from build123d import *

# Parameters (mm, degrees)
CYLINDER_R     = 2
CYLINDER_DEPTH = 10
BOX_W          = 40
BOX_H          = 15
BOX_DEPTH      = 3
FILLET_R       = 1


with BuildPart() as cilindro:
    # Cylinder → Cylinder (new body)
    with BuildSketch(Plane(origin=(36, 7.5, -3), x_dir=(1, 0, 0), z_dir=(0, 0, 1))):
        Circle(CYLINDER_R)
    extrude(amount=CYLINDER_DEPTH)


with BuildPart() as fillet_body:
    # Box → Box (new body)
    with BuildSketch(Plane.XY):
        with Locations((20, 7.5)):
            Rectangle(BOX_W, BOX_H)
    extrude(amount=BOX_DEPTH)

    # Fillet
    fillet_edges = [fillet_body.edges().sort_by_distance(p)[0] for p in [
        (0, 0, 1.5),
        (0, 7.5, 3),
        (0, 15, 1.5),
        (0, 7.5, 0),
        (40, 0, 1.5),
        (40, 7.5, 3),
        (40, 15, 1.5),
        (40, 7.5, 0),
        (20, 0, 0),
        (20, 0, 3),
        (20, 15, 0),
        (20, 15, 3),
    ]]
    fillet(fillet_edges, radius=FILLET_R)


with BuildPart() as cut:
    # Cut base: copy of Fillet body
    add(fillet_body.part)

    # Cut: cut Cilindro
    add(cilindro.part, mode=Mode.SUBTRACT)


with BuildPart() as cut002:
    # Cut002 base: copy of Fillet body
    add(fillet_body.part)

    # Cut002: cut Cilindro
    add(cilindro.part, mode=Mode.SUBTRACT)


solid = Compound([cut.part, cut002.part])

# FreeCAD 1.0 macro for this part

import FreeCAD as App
import Part
import Sketcher

doc = App.newDocument("Part")
body = doc.addObject("PartDesign::Body", "Body")

# Sketch on XY plane
sketch1 = body.newObject("Sketcher::SketchObject", "Sketch")
sketch1.AttachmentSupport = (doc.getObject("XY_Plane"), [""])
sketch1.MapMode = "FlatFace"
sketch1.AttachmentOffset = App.Placement(App.Vector(0, 0, -3), App.Rotation())
sketch1.addGeometry(Part.Circle(App.Vector(36, 7.5, 0), App.Vector(0, 0, 1), 2), False)
sketch1.addConstraint(Sketcher.Constraint("Diameter", 0, 4.0))
sketch1.addConstraint(Sketcher.Constraint("DistanceX", -1, 1, 0, 3, 36.0))
sketch1.addConstraint(Sketcher.Constraint("DistanceY", -1, 1, 0, 3, 7.5))
pad1 = body.newObject("PartDesign::Pad", "Pad")
pad1.Profile = sketch1
pad1.Length = 10
body2 = doc.addObject("PartDesign::Body", "Body001")

# Sketch on XY plane
sketch2 = body2.newObject("Sketcher::SketchObject", "Sketch001")
sketch2.AttachmentSupport = (doc.getObject("XY_Plane001"), [""])
sketch2.MapMode = "FlatFace"
sketch2.addGeometry(Part.LineSegment(App.Vector(0, 15, 0), App.Vector(0, 0, 0)), False)
sketch2.addGeometry(Part.LineSegment(App.Vector(0, 0, 0), App.Vector(40, 0, 0)), False)
sketch2.addGeometry(Part.LineSegment(App.Vector(40, 0, 0), App.Vector(40, 15, 0)), False)
sketch2.addGeometry(Part.LineSegment(App.Vector(40, 15, 0), App.Vector(0, 15, 0)), False)
sketch2.addConstraint(Sketcher.Constraint("Coincident", 0, 2, 1, 1))
sketch2.addConstraint(Sketcher.Constraint("Coincident", 1, 2, 2, 1))
sketch2.addConstraint(Sketcher.Constraint("Coincident", 2, 2, 3, 1))
sketch2.addConstraint(Sketcher.Constraint("Coincident", 3, 2, 0, 1))
sketch2.addConstraint(Sketcher.Constraint("Vertical", 0))
sketch2.addConstraint(Sketcher.Constraint("Horizontal", 1))
sketch2.addConstraint(Sketcher.Constraint("Vertical", 2))
sketch2.addConstraint(Sketcher.Constraint("Horizontal", 3))
sketch2.addConstraint(Sketcher.Constraint("Coincident", 0, 2, -1, 1))
sketch2.addConstraint(Sketcher.Constraint("DistanceX", 1, 1, 1, 2, 40.0))
sketch2.addConstraint(Sketcher.Constraint("DistanceY", 0, 2, 0, 1, 15.0))
pad2 = body2.newObject("PartDesign::Pad", "Pad001")
pad2.Profile = sketch2
pad2.Length = 3
doc.recompute()

fillet = body2.newObject("PartDesign::Fillet", "Fillet")
fillet.Base = (pad2, ["Edge1"])
fillet.UseAllEdges = True
fillet.Radius = 1
body3 = doc.addObject("PartDesign::Body", "Body002")
doc.recompute()

body3.BaseFeature = body2
doc.recompute()

body4 = doc.addObject("PartDesign::Body", "Body003")
body4.BaseFeature = body
boolean = body3.newObject("PartDesign::Boolean", "Boolean")
boolean.Type = "Cut"
boolean.addObjects([body4])
doc.recompute()

boolean2 = body2.newObject("PartDesign::Boolean", "Boolean001")
boolean2.Type = "Cut"
boolean2.addObjects([body])

doc.recompute()
